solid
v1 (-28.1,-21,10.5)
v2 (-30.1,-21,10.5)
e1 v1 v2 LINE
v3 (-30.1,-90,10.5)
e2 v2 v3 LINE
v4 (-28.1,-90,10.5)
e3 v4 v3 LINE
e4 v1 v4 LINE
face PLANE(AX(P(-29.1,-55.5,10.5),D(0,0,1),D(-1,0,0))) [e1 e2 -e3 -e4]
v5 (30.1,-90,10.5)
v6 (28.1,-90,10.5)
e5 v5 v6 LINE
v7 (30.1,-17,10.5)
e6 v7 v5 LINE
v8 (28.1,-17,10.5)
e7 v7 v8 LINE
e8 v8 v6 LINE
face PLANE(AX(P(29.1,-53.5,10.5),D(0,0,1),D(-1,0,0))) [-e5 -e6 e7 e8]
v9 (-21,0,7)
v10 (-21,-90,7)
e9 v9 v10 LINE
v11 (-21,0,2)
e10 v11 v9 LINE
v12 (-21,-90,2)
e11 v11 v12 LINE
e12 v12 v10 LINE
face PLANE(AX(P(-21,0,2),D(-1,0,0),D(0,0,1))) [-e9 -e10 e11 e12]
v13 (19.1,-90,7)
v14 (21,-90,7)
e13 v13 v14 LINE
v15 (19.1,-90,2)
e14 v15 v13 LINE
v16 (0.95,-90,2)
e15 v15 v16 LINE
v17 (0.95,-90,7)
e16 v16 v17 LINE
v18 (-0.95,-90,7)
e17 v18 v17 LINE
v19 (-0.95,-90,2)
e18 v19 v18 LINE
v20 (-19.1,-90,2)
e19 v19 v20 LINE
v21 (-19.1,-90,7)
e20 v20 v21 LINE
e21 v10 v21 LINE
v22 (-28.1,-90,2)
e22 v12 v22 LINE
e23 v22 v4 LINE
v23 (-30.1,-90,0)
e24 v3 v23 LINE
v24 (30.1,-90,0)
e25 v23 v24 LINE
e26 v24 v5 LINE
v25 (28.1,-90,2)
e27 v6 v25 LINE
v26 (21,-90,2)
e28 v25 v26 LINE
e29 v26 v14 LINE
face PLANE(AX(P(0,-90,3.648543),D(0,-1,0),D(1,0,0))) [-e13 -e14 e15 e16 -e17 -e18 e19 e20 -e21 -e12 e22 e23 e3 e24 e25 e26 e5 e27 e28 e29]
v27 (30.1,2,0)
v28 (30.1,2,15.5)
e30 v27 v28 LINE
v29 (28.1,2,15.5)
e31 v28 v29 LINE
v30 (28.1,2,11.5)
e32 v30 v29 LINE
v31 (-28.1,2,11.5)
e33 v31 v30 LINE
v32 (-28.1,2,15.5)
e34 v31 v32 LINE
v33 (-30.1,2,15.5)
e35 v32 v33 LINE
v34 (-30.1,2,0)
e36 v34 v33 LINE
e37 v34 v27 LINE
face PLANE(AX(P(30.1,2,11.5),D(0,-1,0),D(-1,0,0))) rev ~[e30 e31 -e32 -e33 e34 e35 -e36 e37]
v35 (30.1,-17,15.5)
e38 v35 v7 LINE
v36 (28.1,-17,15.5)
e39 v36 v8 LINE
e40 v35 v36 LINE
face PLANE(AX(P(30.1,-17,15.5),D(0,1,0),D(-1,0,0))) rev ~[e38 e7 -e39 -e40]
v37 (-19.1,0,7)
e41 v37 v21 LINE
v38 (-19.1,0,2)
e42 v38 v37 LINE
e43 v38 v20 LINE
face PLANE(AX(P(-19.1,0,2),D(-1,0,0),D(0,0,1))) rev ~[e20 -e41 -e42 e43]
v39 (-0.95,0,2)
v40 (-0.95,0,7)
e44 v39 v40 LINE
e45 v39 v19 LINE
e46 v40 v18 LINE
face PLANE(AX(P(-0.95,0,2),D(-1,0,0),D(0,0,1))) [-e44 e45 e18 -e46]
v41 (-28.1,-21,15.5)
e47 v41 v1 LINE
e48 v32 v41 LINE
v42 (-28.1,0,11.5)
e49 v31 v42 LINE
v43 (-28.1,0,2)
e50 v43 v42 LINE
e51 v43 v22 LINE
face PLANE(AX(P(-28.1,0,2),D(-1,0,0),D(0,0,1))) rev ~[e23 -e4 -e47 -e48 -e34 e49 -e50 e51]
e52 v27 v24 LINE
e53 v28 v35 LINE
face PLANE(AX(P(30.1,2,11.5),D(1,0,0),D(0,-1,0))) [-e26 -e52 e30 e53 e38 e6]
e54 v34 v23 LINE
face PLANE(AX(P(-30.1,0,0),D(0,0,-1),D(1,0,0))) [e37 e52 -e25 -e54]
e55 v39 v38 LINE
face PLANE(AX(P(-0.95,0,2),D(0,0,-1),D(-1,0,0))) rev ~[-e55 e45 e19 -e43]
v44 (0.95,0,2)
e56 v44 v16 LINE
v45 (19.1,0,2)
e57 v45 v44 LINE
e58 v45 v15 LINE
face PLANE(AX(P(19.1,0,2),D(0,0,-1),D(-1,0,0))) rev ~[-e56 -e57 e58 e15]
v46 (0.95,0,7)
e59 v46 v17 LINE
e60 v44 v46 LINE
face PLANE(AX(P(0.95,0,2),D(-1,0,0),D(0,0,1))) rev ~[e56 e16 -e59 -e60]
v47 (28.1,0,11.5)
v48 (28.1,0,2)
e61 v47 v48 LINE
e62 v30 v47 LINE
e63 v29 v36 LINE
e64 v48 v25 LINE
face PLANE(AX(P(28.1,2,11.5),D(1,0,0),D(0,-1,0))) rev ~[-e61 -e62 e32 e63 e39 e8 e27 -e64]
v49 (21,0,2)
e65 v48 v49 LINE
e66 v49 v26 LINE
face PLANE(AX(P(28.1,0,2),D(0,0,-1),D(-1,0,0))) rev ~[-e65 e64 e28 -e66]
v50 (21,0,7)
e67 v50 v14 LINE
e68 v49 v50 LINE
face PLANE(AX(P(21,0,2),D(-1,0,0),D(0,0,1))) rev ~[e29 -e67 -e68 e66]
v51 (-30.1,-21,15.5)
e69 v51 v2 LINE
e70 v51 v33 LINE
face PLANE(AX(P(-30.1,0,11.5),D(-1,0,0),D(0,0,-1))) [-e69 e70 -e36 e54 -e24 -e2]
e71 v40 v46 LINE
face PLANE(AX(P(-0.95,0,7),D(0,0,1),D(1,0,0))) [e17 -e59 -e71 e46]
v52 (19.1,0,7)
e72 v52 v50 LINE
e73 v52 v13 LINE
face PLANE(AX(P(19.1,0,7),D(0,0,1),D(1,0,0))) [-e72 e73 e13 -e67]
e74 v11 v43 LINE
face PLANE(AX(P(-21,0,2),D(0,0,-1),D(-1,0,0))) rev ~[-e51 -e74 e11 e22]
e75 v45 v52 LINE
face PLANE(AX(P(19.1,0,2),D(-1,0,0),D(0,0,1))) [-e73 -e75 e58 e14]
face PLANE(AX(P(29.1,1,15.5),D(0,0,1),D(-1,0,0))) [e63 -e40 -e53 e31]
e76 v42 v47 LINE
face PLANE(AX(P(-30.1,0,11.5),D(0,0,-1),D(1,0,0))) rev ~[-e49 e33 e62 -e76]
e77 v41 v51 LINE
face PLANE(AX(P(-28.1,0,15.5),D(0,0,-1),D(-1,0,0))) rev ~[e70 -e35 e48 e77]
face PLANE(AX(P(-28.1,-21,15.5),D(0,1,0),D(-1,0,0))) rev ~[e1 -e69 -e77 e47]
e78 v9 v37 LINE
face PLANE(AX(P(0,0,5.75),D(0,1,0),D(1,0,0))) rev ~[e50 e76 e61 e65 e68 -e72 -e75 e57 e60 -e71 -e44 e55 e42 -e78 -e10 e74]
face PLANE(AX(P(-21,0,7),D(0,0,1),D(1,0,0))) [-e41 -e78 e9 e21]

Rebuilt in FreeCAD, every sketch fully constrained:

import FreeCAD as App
import Part
import Sketcher

V = App.Vector
Q = App.Units.Quantity

doc = App.newDocument("Part")
body = doc.addObject("PartDesign::Body", "Body")

sketch1 = body.newObject("Sketcher::SketchObject", "Sketch")
sketch1.AttachmentSupport = (doc.getObject("XZ_Plane"), [""])
sketch1.MapMode = "FlatFace"
sketch1.addGeometry(Part.LineSegment(V(-30.1, 0, 0), V(30.1, 0, 0)), False)
sketch1.addGeometry(Part.LineSegment(V(30.1, 0, 0), V(30.1, 15.5, 0)), False)
sketch1.addGeometry(Part.LineSegment(V(30.1, 15.5, 0), V(28.1, 15.5, 0)), False)
sketch1.addGeometry(Part.LineSegment(V(28.1, 15.5, 0), V(28.1, 2, 0)), False)
sketch1.addGeometry(Part.LineSegment(V(28.1, 2, 0), V(21, 2, 0)), False)
sketch1.addGeometry(Part.LineSegment(V(21, 2, 0), V(21, 7, 0)), False)
sketch1.addGeometry(Part.LineSegment(V(21, 7, 0), V(19.1, 7, 0)), False)
sketch1.addGeometry(Part.LineSegment(V(19.1, 7, 0), V(19.1, 2, 0)), False)
sketch1.addGeometry(Part.LineSegment(V(19.1, 2, 0), V(0.95, 2, 0)), False)
sketch1.addGeometry(Part.LineSegment(V(0.95, 2, 0), V(0.95, 7, 0)), False)
sketch1.addGeometry(Part.LineSegment(V(0.95, 7, 0), V(-0.95, 7, 0)), False)
sketch1.addGeometry(Part.LineSegment(V(-0.95, 7, 0), V(-0.95, 2, 0)), False)
sketch1.addGeometry(Part.LineSegment(V(-0.95, 2, 0), V(-19.1, 2, 0)), False)
sketch1.addGeometry(Part.LineSegment(V(-19.1, 2, 0), V(-19.1, 7, 0)), False)
sketch1.addGeometry(Part.LineSegment(V(-19.1, 7, 0), V(-21, 7, 0)), False)
sketch1.addGeometry(Part.LineSegment(V(-21, 7, 0), V(-21, 2, 0)), False)
sketch1.addGeometry(Part.LineSegment(V(-21, 2, 0), V(-28.1, 2, 0)), False)
sketch1.addGeometry(Part.LineSegment(V(-28.1, 2, 0), V(-28.1, 15.5, 0)), False)
sketch1.addGeometry(Part.LineSegment(V(-28.1, 15.5, 0), V(-30.1, 15.5, 0)), False)
sketch1.addGeometry(Part.LineSegment(V(-30.1, 15.5, 0), V(-30.1, 0, 0)), False)
sketch1.addConstraint(Sketcher.Constraint("Coincident", 0, 2, 1, 1))
sketch1.addConstraint(Sketcher.Constraint("Coincident", 1, 2, 2, 1))
sketch1.addConstraint(Sketcher.Constraint("Coincident", 2, 2, 3, 1))
sketch1.addConstraint(Sketcher.Constraint("Coincident", 3, 2, 4, 1))
sketch1.addConstraint(Sketcher.Constraint("Coincident", 4, 2, 5, 1))
sketch1.addConstraint(Sketcher.Constraint("Coincident", 5, 2, 6, 1))
sketch1.addConstraint(Sketcher.Constraint("Coincident", 6, 2, 7, 1))
sketch1.addConstraint(Sketcher.Constraint("Coincident", 7, 2, 8, 1))
sketch1.addConstraint(Sketcher.Constraint("Coincident", 8, 2, 9, 1))
sketch1.addConstraint(Sketcher.Constraint("Coincident", 9, 2, 10, 1))
sketch1.addConstraint(Sketcher.Constraint("Coincident", 10, 2, 11, 1))
sketch1.addConstraint(Sketcher.Constraint("Coincident", 11, 2, 12, 1))
sketch1.addConstraint(Sketcher.Constraint("Coincident", 12, 2, 13, 1))
sketch1.addConstraint(Sketcher.Constraint("Coincident", 13, 2, 14, 1))
sketch1.addConstraint(Sketcher.Constraint("Coincident", 14, 2, 15, 1))
sketch1.addConstraint(Sketcher.Constraint("Coincident", 15, 2, 16, 1))
sketch1.addConstraint(Sketcher.Constraint("Coincident", 16, 2, 17, 1))
sketch1.addConstraint(Sketcher.Constraint("Coincident", 17, 2, 18, 1))
sketch1.addConstraint(Sketcher.Constraint("Coincident", 18, 2, 19, 1))
sketch1.addConstraint(Sketcher.Constraint("Coincident", 19, 2, 0, 1))
sketch1.addConstraint(Sketcher.Constraint("Horizontal", 0))
sketch1.addConstraint(Sketcher.Constraint("Vertical", 1))
sketch1.addConstraint(Sketcher.Constraint("Horizontal", 2))
sketch1.addConstraint(Sketcher.Constraint("Vertical", 3))
sketch1.addConstraint(Sketcher.Constraint("Horizontal", 4))
sketch1.addConstraint(Sketcher.Constraint("Vertical", 5))
sketch1.addConstraint(Sketcher.Constraint("Horizontal", 6))
sketch1.addConstraint(Sketcher.Constraint("Vertical", 7))
sketch1.addConstraint(Sketcher.Constraint("Horizontal", 8))
sketch1.addConstraint(Sketcher.Constraint("Vertical", 9))
sketch1.addConstraint(Sketcher.Constraint("Horizontal", 10))
sketch1.addConstraint(Sketcher.Constraint("Vertical", 11))
sketch1.addConstraint(Sketcher.Constraint("Horizontal", 12))
sketch1.addConstraint(Sketcher.Constraint("Vertical", 13))
sketch1.addConstraint(Sketcher.Constraint("Horizontal", 14))
sketch1.addConstraint(Sketcher.Constraint("Vertical", 15))
sketch1.addConstraint(Sketcher.Constraint("Horizontal", 16))
sketch1.addConstraint(Sketcher.Constraint("Vertical", 17))
sketch1.addConstraint(Sketcher.Constraint("Horizontal", 18))
sketch1.addConstraint(Sketcher.Constraint("Vertical", 19))
sketch1.addConstraint(Sketcher.Constraint("Symmetric", 0, 2, 19, 2, -1, 1))
sketch1.addConstraint(Sketcher.Constraint("Symmetric", 8, 2, 11, 2, -2))
sketch1.addConstraint(Sketcher.Constraint("Symmetric", 6, 2, 13, 2, -2))
sketch1.addConstraint(Sketcher.Constraint("Symmetric", 4, 2, 15, 2, -2))
sketch1.addConstraint(Sketcher.Constraint("Symmetric", 2, 2, 17, 2, -2))
sketch1.addConstraint(Sketcher.Constraint("Horizontal", 4, 2, 7, 2))
sketch1.addConstraint(Sketcher.Constraint("Horizontal", 6, 2, 9, 2))
sketch1.addConstraint(Sketcher.Constraint("Equal", 6, 10))
sketch1.addConstraint(Sketcher.Constraint("DistanceX", 2, 2, 2, 1, Q("2 mm")))
sketch1.addConstraint(Sketcher.Constraint("DistanceY", 5, 1, 5, 2, Q("5 mm")))
sketch1.addConstraint(Sketcher.Constraint("DistanceX", 0, 1, 0, 2, Q("60.2 mm")))
sketch1.addConstraint(Sketcher.Constraint("DistanceX", 4, 2, 4, 1, Q("7.1 mm")))
sketch1.addConstraint(Sketcher.Constraint("DistanceX", 6, 2, 6, 1, Q("1.9 mm")))
sketch1.addConstraint(Sketcher.Constraint("DistanceY", 1, 1, 1, 2, Q("15.5 mm")))
sketch1.addConstraint(Sketcher.Constraint("DistanceY", 3, 2, 3, 1, Q("13.5 mm")))
pad1 = body.newObject("PartDesign::Pad", "Pad")
pad1.Profile = sketch1
pad1.Length = 90

sketch2 = body.newObject("Sketcher::SketchObject", "Sketch001")
sketch2.AttachmentSupport = (doc.getObject("XY_Plane"), [""])
sketch2.MapMode = "FlatFace"
sketch2.AttachmentOffset = App.Placement(V(0, 0, 15.5), App.Rotation())
sketch2.addGeometry(Part.LineSegment(V(-28.1, -90, 0), V(-28.1, -21, 0)), False)
sketch2.addGeometry(Part.LineSegment(V(-28.1, -21, 0), V(-30.1, -21, 0)), False)
sketch2.addGeometry(Part.LineSegment(V(-30.1, -21, 0), V(-30.1, -90, 0)), False)
sketch2.addGeometry(Part.LineSegment(V(-30.1, -90, 0), V(-28.1, -90, 0)), False)
sketch2.addGeometry(Part.LineSegment(V(30.1, -90, 0), V(30.1, -17, 0)), False)
sketch2.addGeometry(Part.LineSegment(V(30.1, -17, 0), V(28.1, -17, 0)), False)
sketch2.addGeometry(Part.LineSegment(V(28.1, -17, 0), V(28.1, -90, 0)), False)
sketch2.addGeometry(Part.LineSegment(V(28.1, -90, 0), V(30.1, -90, 0)), False)
sketch2.addConstraint(Sketcher.Constraint("Coincident", 0, 2, 1, 1))
sketch2.addConstraint(Sketcher.Constraint("Coincident", 1, 2, 2, 1))
sketch2.addConstraint(Sketcher.Constraint("Coincident", 2, 2, 3, 1))
sketch2.addConstraint(Sketcher.Constraint("Coincident", 3, 2, 0, 1))
sketch2.addConstraint(Sketcher.Constraint("Coincident", 4, 2, 5, 1))
sketch2.addConstraint(Sketcher.Constraint("Coincident", 5, 2, 6, 1))
sketch2.addConstraint(Sketcher.Constraint("Coincident", 6, 2, 7, 1))
sketch2.addConstraint(Sketcher.Constraint("Coincident", 7, 2, 4, 1))
sketch2.addConstraint(Sketcher.Constraint("Vertical", 0))
sketch2.addConstraint(Sketcher.Constraint("Horizontal", 1))
sketch2.addConstraint(Sketcher.Constraint("Vertical", 2))
sketch2.addConstraint(Sketcher.Constraint("Horizontal", 3))
sketch2.addConstraint(Sketcher.Constraint("Vertical", 4))
sketch2.addConstraint(Sketcher.Constraint("Horizontal", 5))
sketch2.addConstraint(Sketcher.Constraint("Vertical", 6))
sketch2.addConstraint(Sketcher.Constraint("Horizontal", 7))
sketch2.addConstraint(Sketcher.Constraint("Symmetric", 3, 2, 6, 2, -2))
sketch2.addConstraint(Sketcher.Constraint("Equal", 3, 5))
sketch2.addConstraint(Sketcher.Constraint("DistanceX", 1, 2, 1, 1, Q("2 mm")))
sketch2.addConstraint(Sketcher.Constraint("DistanceY", 0, 1, 0, 2, Q("69 mm")))
sketch2.addConstraint(Sketcher.Constraint("DistanceY", 4, 1, 4, 2, Q("73 mm")))
sketch2.addConstraint(Sketcher.Constraint("DistanceY", 0, 2, -1, 1, Q("21 mm")))
sketch2.addConstraint(Sketcher.Constraint("DistanceX", 0, 2, -1, 1, Q("28.1 mm")))
pocket1 = body.newObject("PartDesign::Pocket", "Pocket")
pocket1.Profile = sketch2
pocket1.Length = 5

sketch3 = body.newObject("Sketcher::SketchObject", "Sketch002")
sketch3.AttachmentSupport = (doc.getObject("XZ_Plane"), [""])
sketch3.MapMode = "FlatFace"
sketch3.addGeometry(Part.LineSegment(V(-30.1, 0, 0), V(-30.1, 11.5, 0)), False)
sketch3.addGeometry(Part.LineSegment(V(-30.1, 11.5, 0), V(30.1, 11.5, 0)), False)
sketch3.addGeometry(Part.LineSegment(V(30.1, 11.5, 0), V(30.1, 0, 0)), False)
sketch3.addGeometry(Part.LineSegment(V(30.1, 0, 0), V(-30.1, 0, 0)), False)
sketch3.addConstraint(Sketcher.Constraint("Coincident", 0, 2, 1, 1))
sketch3.addConstraint(Sketcher.Constraint("Coincident", 1, 2, 2, 1))
sketch3.addConstraint(Sketcher.Constraint("Coincident", 2, 2, 3, 1))
sketch3.addConstraint(Sketcher.Constraint("Coincident", 3, 2, 0, 1))
sketch3.addConstraint(Sketcher.Constraint("Vertical", 0))
sketch3.addConstraint(Sketcher.Constraint("Horizontal", 1))
sketch3.addConstraint(Sketcher.Constraint("Vertical", 2))
sketch3.addConstraint(Sketcher.Constraint("Horizontal", 3))
sketch3.addConstraint(Sketcher.Constraint("Symmetric", 2, 2, 3, 2, -1, 1))
sketch3.addConstraint(Sketcher.Constraint("DistanceX", 1, 1, 1, 2, Q("60.2 mm")))
sketch3.addConstraint(Sketcher.Constraint("DistanceY", 0, 1, 0, 2, Q("11.5 mm")))
pad2 = body.newObject("PartDesign::Pad", "Pad001")
pad2.Profile = sketch3
pad2.Length = 2
pad2.Reversed = True

sketch4 = body.newObject("Sketcher::SketchObject", "Sketch003")
sketch4.AttachmentSupport = (doc.getObject("XY_Plane"), [""])
sketch4.MapMode = "FlatFace"
sketch4.AttachmentOffset = App.Placement(V(0, 0, 11.5), App.Rotation())
sketch4.addGeometry(Part.LineSegment(V(30.1, 0, 0), V(30.1, 2, 0)), False)
sketch4.addGeometry(Part.LineSegment(V(30.1, 2, 0), V(28.1, 2, 0)), False)
sketch4.addGeometry(Part.LineSegment(V(28.1, 2, 0), V(28.1, 0, 0)), False)
sketch4.addGeometry(Part.LineSegment(V(28.1, 0, 0), V(30.1, 0, 0)), False)
sketch4.addGeometry(Part.LineSegment(V(-28.1, 0, 0), V(-28.1, 2, 0)), False)
sketch4.addGeometry(Part.LineSegment(V(-28.1, 2, 0), V(-30.1, 2, 0)), False)
sketch4.addGeometry(Part.LineSegment(V(-30.1, 2, 0), V(-30.1, 0, 0)), False)
sketch4.addGeometry(Part.LineSegment(V(-30.1, 0, 0), V(-28.1, 0, 0)), False)
sketch4.addConstraint(Sketcher.Constraint("Coincident", 0, 2, 1, 1))
sketch4.addConstraint(Sketcher.Constraint("Coincident", 1, 2, 2, 1))
sketch4.addConstraint(Sketcher.Constraint("Coincident", 2, 2, 3, 1))
sketch4.addConstraint(Sketcher.Constraint("Coincident", 3, 2, 0, 1))
sketch4.addConstraint(Sketcher.Constraint("Coincident", 4, 2, 5, 1))
sketch4.addConstraint(Sketcher.Constraint("Coincident", 5, 2, 6, 1))
sketch4.addConstraint(Sketcher.Constraint("Coincident", 6, 2, 7, 1))
sketch4.addConstraint(Sketcher.Constraint("Coincident", 7, 2, 4, 1))
sketch4.addConstraint(Sketcher.Constraint("Vertical", 0))
sketch4.addConstraint(Sketcher.Constraint("Horizontal", 1))
sketch4.addConstraint(Sketcher.Constraint("Vertical", 2))
sketch4.addConstraint(Sketcher.Constraint("Horizontal", 3))
sketch4.addConstraint(Sketcher.Constraint("Vertical", 4))
sketch4.addConstraint(Sketcher.Constraint("Horizontal", 5))
sketch4.addConstraint(Sketcher.Constraint("Vertical", 6))
sketch4.addConstraint(Sketcher.Constraint("Horizontal", 7))
sketch4.addConstraint(Sketcher.Constraint("Symmetric", 3, 2, 6, 2, -1, 1))
sketch4.addConstraint(Sketcher.Constraint("Symmetric", 1, 2, 4, 2, -2))
sketch4.addConstraint(Sketcher.Constraint("PointOnObject", 2, 2, -1))
sketch4.addConstraint(Sketcher.Constraint("Equal", 7, 0))
sketch4.addConstraint(Sketcher.Constraint("DistanceX", 1, 2, 1, 1, Q("2 mm")))
sketch4.addConstraint(Sketcher.Constraint("DistanceX", -1, 1, 0, 2, Q("30.1 mm")))
pad3 = body.newObject("PartDesign::Pad", "Pad002")
pad3.Profile = sketch4
pad3.Length = 4

doc.recompute()
